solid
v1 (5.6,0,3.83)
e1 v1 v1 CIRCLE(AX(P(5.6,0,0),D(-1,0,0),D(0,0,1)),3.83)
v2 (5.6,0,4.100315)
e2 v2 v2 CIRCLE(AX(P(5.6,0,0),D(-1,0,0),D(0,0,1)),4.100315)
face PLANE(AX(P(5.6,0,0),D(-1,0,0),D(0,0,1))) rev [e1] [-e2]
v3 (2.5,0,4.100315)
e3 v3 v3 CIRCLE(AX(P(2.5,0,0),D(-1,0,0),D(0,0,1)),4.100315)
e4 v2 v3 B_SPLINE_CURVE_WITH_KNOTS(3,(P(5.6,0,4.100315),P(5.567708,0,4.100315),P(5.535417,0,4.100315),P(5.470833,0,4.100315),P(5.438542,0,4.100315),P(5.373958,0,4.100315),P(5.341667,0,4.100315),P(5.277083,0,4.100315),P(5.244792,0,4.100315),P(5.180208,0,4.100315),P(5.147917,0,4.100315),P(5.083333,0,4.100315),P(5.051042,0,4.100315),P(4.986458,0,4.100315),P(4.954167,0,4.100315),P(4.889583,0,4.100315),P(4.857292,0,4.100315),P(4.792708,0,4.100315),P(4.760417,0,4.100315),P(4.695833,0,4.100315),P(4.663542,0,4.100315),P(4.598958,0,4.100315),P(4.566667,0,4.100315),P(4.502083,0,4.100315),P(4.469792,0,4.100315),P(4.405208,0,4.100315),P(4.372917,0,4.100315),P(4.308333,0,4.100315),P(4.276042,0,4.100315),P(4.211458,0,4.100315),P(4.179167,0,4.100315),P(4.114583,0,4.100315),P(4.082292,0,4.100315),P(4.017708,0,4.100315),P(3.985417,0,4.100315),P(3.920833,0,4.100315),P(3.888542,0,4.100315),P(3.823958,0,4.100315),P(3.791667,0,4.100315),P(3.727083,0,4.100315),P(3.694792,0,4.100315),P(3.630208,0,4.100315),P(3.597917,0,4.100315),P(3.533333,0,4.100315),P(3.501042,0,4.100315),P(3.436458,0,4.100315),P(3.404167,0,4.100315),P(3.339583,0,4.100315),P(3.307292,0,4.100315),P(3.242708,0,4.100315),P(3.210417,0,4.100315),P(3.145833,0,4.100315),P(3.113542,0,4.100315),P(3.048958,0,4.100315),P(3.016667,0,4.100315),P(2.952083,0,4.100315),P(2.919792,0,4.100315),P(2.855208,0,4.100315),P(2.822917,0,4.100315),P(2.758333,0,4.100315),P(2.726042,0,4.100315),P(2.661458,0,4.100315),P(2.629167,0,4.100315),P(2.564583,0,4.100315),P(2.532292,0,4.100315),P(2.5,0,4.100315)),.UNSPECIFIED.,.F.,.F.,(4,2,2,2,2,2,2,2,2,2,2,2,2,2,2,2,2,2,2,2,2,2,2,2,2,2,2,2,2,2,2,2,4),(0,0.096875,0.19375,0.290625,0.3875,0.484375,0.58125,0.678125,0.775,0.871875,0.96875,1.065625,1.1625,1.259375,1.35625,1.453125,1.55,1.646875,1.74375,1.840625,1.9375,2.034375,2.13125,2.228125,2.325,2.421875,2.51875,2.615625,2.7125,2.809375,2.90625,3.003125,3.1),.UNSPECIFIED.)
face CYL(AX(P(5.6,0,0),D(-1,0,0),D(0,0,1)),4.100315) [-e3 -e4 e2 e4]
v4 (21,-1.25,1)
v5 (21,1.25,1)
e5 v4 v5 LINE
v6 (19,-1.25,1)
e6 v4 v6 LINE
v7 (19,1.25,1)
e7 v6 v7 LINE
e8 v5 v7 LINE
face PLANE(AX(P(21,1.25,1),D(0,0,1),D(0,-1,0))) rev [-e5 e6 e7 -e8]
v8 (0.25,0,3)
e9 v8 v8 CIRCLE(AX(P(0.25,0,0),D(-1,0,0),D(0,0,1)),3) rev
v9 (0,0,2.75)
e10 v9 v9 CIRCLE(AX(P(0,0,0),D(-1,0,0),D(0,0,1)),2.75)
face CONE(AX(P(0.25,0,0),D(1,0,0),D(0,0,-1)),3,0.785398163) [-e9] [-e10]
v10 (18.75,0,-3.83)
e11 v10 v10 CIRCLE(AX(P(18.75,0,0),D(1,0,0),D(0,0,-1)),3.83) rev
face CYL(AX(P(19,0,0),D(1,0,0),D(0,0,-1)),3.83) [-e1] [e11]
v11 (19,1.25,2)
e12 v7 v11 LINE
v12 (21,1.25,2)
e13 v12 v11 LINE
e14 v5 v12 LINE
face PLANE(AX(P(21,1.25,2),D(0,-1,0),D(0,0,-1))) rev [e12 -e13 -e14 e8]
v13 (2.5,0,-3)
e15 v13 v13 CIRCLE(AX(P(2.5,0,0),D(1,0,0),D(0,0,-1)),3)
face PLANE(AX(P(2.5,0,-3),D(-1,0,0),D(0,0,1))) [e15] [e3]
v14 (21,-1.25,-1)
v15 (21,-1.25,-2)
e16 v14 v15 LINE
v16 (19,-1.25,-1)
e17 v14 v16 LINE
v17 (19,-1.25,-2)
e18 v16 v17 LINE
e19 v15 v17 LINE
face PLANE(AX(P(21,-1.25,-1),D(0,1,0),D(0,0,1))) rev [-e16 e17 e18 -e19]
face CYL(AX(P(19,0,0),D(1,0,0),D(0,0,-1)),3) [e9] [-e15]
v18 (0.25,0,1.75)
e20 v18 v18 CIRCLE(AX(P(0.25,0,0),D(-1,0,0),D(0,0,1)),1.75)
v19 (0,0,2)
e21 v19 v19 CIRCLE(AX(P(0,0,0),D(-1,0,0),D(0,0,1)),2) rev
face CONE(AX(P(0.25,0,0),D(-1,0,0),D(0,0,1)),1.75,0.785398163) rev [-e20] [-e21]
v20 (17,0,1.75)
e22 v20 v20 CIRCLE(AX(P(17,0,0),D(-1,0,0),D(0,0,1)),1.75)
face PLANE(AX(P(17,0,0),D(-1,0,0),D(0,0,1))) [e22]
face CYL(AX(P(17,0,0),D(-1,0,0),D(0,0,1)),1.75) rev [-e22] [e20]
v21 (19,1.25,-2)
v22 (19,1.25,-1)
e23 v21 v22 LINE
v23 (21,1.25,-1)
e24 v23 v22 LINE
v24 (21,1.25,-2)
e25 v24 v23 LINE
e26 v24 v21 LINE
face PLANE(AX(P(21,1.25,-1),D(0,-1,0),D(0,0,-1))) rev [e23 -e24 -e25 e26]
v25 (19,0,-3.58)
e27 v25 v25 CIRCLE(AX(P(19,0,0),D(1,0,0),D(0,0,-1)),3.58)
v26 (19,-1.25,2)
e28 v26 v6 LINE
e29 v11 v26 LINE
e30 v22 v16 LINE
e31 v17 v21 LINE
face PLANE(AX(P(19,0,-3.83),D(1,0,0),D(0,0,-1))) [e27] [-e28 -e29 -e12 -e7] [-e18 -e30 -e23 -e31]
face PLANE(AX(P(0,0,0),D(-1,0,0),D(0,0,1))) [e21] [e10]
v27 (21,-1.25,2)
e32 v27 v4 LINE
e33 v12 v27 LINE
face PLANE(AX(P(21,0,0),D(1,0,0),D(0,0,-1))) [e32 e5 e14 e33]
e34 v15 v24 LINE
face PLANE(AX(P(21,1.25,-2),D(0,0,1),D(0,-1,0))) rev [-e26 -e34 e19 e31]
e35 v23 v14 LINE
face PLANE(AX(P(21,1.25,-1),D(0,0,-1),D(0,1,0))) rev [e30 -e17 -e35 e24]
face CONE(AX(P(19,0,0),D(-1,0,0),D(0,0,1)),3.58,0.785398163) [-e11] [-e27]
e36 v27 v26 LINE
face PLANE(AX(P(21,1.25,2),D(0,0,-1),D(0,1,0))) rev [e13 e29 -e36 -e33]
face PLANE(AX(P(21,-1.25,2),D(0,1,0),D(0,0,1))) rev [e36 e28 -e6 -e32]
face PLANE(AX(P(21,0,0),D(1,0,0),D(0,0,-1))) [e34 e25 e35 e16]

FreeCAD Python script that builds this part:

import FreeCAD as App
import Part
import Sketcher

V = App.Vector


def edges_at(feature, points):
    """Names of the edges that pass closest to the given points."""
    edges = feature.Shape.Edges
    near = lambda p: min(range(len(edges)), key=lambda i: edges[i].distToShape(Part.Vertex(*p))[0])
    return sorted({f"Edge{near(p) + 1}" for p in points})


def add_polygon(sketch, points):
    """Adds a closed chain of lines whose ends are joined by coincident constraints."""
    first, n = sketch.GeometryCount, len(points)
    for a, b in zip(points, points[1:] + points[:1]):
        sketch.addGeometry(Part.LineSegment(App.Vector(*a, 0), App.Vector(*b, 0)), False)
    for i in range(n):
        sketch.addConstraint(Sketcher.Constraint("Coincident", first + i, 2, first + (i + 1) % n, 1))

doc = App.newDocument("Part")
body = doc.addObject("PartDesign::Body", "Body")

sketch1 = body.newObject("Sketcher::SketchObject", "Sketch")
sketch1.AttachmentSupport = (doc.getObject("XZ_Plane"), [""])
sketch1.MapMode = "FlatFace"
add_polygon(sketch1, [(0, -3), (0, 0), (19, 0), (19, -3.8), (2.5, -3.8), (2.5, -3)])
sketch1.addConstraint([
    Sketcher.Constraint("Vertical", 0),
    Sketcher.Constraint("Horizontal", 1),
    Sketcher.Constraint("Vertical", 2),
    Sketcher.Constraint("Horizontal", 3),
    Sketcher.Constraint("Vertical", 4),
    Sketcher.Constraint("Horizontal", 5),
    Sketcher.Constraint("Coincident", 0, 2, -1, 1),
    Sketcher.Constraint("DistanceX", 1, 1, 1, 2, 19.0),
    Sketcher.Constraint("DistanceY", 0, 1, 0, 2, 3.0),
    Sketcher.Constraint("DistanceX", 3, 2, 3, 1, 16.5),
    Sketcher.Constraint("DistanceY", 2, 2, 2, 1, 3.83),
])
revolution = body.newObject("PartDesign::Revolution", "Revolution")
revolution.Profile = sketch1
revolution.ReferenceAxis = (sketch1, ["H_Axis"])
revolution.Angle = 360

sketch2 = body.newObject("Sketcher::SketchObject", "Sketch001")
sketch2.AttachmentSupport = (doc.getObject("YZ_Plane"), [""])
sketch2.MapMode = "FlatFace"
sketch2.addGeometry(Part.Circle(V(0, 0, 0), V(0, 0, 1), 1.8), False)
sketch2.addConstraint([
    Sketcher.Constraint("Coincident", 0, 3, -1, 1),
    Sketcher.Constraint("Diameter", 0, 3.5),
])
pocket1 = body.newObject("PartDesign::Pocket", "Pocket")
pocket1.Profile = sketch2
pocket1.Length = 17
pocket1.Reversed = True

sketch3 = body.newObject("Sketcher::SketchObject", "Sketch002")
sketch3.AttachmentSupport = (doc.getObject("YZ_Plane"), [""])
sketch3.MapMode = "FlatFace"
sketch3.AttachmentOffset = App.Placement(V(0, 0, 19), App.Rotation())
add_polygon(sketch3, [(1.2, 2), (-1.2, 2), (-1.2, 1), (1.2, 1)])
add_polygon(sketch3, [(1.2, -1), (-1.2, -1), (-1.2, -2), (1.2, -2)])
sketch3.addConstraint([
    Sketcher.Constraint("Horizontal", 0),
    Sketcher.Constraint("Vertical", 1),
    Sketcher.Constraint("Horizontal", 2),
    Sketcher.Constraint("Vertical", 3),
    Sketcher.Constraint("Horizontal", 4),
    Sketcher.Constraint("Vertical", 5),
    Sketcher.Constraint("Horizontal", 6),
    Sketcher.Constraint("Vertical", 7),
    Sketcher.Constraint("Symmetric", 2, 2, 4, 2, -1, 1),
    Sketcher.Constraint("Symmetric", 0, 2, 6, 2, -1, 1),
    Sketcher.Constraint("Vertical", 1, 2, 4, 2),
    Sketcher.Constraint("DistanceY", 1, 2, 1, 1, 1.0),
    Sketcher.Constraint("DistanceX", 0, 2, 0, 1, 2.5),
    Sketcher.Constraint("DistanceY", -1, 1, 0, 2, 2.0),
])
pad1 = body.newObject("PartDesign::Pad", "Pad")
pad1.Profile = sketch3
pad1.Length = 2
doc.recompute()

chamfer = body.newObject("PartDesign::Chamfer", "Chamfer")
chamfer.Base = (pad1, edges_at(pad1, [(0, 0, -1.75), (19, 0, 3.83), (0, 0, 3)]))
chamfer.Size = 0.25

sketch4 = body.newObject("Sketcher::SketchObject", "Sketch003")
sketch4.AttachmentSupport = (doc.getObject("YZ_Plane"), [""])
sketch4.MapMode = "FlatFace"
sketch4.AttachmentOffset = App.Placement(V(0, 0, 5.6), App.Rotation())
sketch4.addGeometry([
    Part.Circle(V(0, 0, 0), V(0, 0, 1), 4.1),
    Part.Circle(V(0, 0, 0), V(0, 0, 1), 3.8),
], False)
sketch4.addConstraint([
    Sketcher.Constraint("Coincident", 0, 3, -1, 1),
    Sketcher.Constraint("Coincident", 1, 3, -1, 1),
    Sketcher.Constraint("Diameter", 1, 7.66),
    Sketcher.Constraint("Diameter", 0, 8.200631),
])
pad2 = body.newObject("PartDesign::Pad", "Pad001")
pad2.Profile = sketch4
pad2.Length = 3.1
pad2.Reversed = True

doc.recompute()
